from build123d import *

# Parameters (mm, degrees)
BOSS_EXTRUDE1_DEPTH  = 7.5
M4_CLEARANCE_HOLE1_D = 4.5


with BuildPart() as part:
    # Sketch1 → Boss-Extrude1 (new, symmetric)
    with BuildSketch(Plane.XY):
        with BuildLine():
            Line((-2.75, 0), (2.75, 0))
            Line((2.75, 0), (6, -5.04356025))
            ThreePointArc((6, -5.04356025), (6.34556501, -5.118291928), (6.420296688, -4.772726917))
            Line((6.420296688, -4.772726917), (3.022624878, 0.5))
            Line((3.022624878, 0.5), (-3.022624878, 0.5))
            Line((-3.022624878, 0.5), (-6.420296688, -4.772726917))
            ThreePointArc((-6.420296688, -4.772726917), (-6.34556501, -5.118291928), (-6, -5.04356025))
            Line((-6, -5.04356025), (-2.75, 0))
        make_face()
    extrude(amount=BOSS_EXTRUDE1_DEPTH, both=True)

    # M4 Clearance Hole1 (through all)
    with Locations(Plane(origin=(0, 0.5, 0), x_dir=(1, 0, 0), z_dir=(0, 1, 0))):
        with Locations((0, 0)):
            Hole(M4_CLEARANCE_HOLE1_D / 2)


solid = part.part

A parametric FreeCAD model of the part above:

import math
import FreeCAD as App
import Part
import Sketcher

V = App.Vector
Q = App.Units.Quantity

doc = App.newDocument("Part")
body = doc.addObject("PartDesign::Body", "Body")

# Sketch on XY plane
sketch1 = body.newObject("Sketcher::SketchObject", "Sketch")
sketch1.AttachmentSupport = (doc.getObject("XY_Plane"), [""])
sketch1.MapMode = "FlatFace"
sketch1.addGeometry([
    Part.LineSegment(V(-2.75, 0, 0), V(2.75, 0, 0)),  # 0
    Part.LineSegment(V(2.75, 0, 0), V(6, -5.04, 0)),  # 1
    Part.ArcOfCircle(Part.Circle(V(6.21, -4.91, 0), V(0, 0, 1), 0.25), math.radians(-147), math.radians(33)),  # 2
    Part.LineSegment(V(6.42, -4.77, 0), V(3.02, 0.5, 0)),  # 3
    Part.LineSegment(V(3.02, 0.5, 0), V(-3.02, 0.5, 0)),  # 4
    Part.LineSegment(V(-3.02, 0.5, 0), V(-6.42, -4.77, 0)),  # 5
    Part.ArcOfCircle(Part.Circle(V(-6.21, -4.91, 0), V(0, 0, 1), 0.25), math.radians(147), math.radians(327)),  # 6
    Part.LineSegment(V(-6, -5.04, 0), V(-2.75, 0, 0)),  # 7
], False)
sketch1.addConstraint([
    Sketcher.Constraint("Coincident", 0, 2, 1, 1),
    Sketcher.Constraint("Tangent", 1, 2, 2, 1),
    Sketcher.Constraint("Tangent", 2, 2, 3, 1),
    Sketcher.Constraint("Coincident", 3, 2, 4, 1),
    Sketcher.Constraint("Coincident", 4, 2, 5, 1),
    Sketcher.Constraint("Tangent", 5, 2, 6, 1),
    Sketcher.Constraint("Tangent", 6, 2, 7, 1),
    Sketcher.Constraint("Coincident", 7, 2, 0, 1),
    Sketcher.Constraint("Horizontal", 0),
    Sketcher.Constraint("Horizontal", 4),
    Sketcher.Constraint("Equal", 2, 6),
    Sketcher.Constraint("Symmetric", 0, 2, 7, 2, -1, 1),
    Sketcher.Constraint("Symmetric", 2, 3, 6, 3, -2),
    Sketcher.Constraint("Parallel", 1, 3),
    Sketcher.Constraint("Parallel", 5, 7),
    Sketcher.Constraint("Radius", 2, Q("0.25 mm")),
    Sketcher.Constraint("Distance", 1, Q("6 mm")),
    Sketcher.Constraint("DistanceX", 0, 1, 0, 2, Q("5.5 mm")),
    Sketcher.Constraint("DistanceX", -1, 1, 1, 2, Q("6 mm")),
    Sketcher.Constraint("DistanceY", -1, 1, 3, 2, Q("0.5 mm")),
])
pad1 = body.newObject("PartDesign::Pad", "Pad")
pad1.Profile = sketch1
pad1.Length = 15
pad1.Midplane = True

# Sketch on XZ plane
sketch2 = body.newObject("Sketcher::SketchObject", "Sketch001")
sketch2.AttachmentSupport = (doc.getObject("XZ_Plane"), [""])
sketch2.MapMode = "FlatFace"
sketch2.AttachmentOffset = App.Placement(V(0, 0, -0.5), App.Rotation())
sketch2.addGeometry(Part.Circle(V(0, 0, 0), V(0, 0, 1), 2.2), False)
sketch2.addConstraint([
    Sketcher.Constraint("Coincident", 0, 3, -1, 1),
    Sketcher.Constraint("Diameter", 0, Q("4.5 mm")),
])
doc.recompute()
hole = body.newObject("PartDesign::Hole", "Hole")
hole.Profile = sketch2
hole.ThreadType = "None"
hole.Diameter = 4.5
hole.DepthType = "ThroughAll"
hole.Reversed = True

doc.recompute()
